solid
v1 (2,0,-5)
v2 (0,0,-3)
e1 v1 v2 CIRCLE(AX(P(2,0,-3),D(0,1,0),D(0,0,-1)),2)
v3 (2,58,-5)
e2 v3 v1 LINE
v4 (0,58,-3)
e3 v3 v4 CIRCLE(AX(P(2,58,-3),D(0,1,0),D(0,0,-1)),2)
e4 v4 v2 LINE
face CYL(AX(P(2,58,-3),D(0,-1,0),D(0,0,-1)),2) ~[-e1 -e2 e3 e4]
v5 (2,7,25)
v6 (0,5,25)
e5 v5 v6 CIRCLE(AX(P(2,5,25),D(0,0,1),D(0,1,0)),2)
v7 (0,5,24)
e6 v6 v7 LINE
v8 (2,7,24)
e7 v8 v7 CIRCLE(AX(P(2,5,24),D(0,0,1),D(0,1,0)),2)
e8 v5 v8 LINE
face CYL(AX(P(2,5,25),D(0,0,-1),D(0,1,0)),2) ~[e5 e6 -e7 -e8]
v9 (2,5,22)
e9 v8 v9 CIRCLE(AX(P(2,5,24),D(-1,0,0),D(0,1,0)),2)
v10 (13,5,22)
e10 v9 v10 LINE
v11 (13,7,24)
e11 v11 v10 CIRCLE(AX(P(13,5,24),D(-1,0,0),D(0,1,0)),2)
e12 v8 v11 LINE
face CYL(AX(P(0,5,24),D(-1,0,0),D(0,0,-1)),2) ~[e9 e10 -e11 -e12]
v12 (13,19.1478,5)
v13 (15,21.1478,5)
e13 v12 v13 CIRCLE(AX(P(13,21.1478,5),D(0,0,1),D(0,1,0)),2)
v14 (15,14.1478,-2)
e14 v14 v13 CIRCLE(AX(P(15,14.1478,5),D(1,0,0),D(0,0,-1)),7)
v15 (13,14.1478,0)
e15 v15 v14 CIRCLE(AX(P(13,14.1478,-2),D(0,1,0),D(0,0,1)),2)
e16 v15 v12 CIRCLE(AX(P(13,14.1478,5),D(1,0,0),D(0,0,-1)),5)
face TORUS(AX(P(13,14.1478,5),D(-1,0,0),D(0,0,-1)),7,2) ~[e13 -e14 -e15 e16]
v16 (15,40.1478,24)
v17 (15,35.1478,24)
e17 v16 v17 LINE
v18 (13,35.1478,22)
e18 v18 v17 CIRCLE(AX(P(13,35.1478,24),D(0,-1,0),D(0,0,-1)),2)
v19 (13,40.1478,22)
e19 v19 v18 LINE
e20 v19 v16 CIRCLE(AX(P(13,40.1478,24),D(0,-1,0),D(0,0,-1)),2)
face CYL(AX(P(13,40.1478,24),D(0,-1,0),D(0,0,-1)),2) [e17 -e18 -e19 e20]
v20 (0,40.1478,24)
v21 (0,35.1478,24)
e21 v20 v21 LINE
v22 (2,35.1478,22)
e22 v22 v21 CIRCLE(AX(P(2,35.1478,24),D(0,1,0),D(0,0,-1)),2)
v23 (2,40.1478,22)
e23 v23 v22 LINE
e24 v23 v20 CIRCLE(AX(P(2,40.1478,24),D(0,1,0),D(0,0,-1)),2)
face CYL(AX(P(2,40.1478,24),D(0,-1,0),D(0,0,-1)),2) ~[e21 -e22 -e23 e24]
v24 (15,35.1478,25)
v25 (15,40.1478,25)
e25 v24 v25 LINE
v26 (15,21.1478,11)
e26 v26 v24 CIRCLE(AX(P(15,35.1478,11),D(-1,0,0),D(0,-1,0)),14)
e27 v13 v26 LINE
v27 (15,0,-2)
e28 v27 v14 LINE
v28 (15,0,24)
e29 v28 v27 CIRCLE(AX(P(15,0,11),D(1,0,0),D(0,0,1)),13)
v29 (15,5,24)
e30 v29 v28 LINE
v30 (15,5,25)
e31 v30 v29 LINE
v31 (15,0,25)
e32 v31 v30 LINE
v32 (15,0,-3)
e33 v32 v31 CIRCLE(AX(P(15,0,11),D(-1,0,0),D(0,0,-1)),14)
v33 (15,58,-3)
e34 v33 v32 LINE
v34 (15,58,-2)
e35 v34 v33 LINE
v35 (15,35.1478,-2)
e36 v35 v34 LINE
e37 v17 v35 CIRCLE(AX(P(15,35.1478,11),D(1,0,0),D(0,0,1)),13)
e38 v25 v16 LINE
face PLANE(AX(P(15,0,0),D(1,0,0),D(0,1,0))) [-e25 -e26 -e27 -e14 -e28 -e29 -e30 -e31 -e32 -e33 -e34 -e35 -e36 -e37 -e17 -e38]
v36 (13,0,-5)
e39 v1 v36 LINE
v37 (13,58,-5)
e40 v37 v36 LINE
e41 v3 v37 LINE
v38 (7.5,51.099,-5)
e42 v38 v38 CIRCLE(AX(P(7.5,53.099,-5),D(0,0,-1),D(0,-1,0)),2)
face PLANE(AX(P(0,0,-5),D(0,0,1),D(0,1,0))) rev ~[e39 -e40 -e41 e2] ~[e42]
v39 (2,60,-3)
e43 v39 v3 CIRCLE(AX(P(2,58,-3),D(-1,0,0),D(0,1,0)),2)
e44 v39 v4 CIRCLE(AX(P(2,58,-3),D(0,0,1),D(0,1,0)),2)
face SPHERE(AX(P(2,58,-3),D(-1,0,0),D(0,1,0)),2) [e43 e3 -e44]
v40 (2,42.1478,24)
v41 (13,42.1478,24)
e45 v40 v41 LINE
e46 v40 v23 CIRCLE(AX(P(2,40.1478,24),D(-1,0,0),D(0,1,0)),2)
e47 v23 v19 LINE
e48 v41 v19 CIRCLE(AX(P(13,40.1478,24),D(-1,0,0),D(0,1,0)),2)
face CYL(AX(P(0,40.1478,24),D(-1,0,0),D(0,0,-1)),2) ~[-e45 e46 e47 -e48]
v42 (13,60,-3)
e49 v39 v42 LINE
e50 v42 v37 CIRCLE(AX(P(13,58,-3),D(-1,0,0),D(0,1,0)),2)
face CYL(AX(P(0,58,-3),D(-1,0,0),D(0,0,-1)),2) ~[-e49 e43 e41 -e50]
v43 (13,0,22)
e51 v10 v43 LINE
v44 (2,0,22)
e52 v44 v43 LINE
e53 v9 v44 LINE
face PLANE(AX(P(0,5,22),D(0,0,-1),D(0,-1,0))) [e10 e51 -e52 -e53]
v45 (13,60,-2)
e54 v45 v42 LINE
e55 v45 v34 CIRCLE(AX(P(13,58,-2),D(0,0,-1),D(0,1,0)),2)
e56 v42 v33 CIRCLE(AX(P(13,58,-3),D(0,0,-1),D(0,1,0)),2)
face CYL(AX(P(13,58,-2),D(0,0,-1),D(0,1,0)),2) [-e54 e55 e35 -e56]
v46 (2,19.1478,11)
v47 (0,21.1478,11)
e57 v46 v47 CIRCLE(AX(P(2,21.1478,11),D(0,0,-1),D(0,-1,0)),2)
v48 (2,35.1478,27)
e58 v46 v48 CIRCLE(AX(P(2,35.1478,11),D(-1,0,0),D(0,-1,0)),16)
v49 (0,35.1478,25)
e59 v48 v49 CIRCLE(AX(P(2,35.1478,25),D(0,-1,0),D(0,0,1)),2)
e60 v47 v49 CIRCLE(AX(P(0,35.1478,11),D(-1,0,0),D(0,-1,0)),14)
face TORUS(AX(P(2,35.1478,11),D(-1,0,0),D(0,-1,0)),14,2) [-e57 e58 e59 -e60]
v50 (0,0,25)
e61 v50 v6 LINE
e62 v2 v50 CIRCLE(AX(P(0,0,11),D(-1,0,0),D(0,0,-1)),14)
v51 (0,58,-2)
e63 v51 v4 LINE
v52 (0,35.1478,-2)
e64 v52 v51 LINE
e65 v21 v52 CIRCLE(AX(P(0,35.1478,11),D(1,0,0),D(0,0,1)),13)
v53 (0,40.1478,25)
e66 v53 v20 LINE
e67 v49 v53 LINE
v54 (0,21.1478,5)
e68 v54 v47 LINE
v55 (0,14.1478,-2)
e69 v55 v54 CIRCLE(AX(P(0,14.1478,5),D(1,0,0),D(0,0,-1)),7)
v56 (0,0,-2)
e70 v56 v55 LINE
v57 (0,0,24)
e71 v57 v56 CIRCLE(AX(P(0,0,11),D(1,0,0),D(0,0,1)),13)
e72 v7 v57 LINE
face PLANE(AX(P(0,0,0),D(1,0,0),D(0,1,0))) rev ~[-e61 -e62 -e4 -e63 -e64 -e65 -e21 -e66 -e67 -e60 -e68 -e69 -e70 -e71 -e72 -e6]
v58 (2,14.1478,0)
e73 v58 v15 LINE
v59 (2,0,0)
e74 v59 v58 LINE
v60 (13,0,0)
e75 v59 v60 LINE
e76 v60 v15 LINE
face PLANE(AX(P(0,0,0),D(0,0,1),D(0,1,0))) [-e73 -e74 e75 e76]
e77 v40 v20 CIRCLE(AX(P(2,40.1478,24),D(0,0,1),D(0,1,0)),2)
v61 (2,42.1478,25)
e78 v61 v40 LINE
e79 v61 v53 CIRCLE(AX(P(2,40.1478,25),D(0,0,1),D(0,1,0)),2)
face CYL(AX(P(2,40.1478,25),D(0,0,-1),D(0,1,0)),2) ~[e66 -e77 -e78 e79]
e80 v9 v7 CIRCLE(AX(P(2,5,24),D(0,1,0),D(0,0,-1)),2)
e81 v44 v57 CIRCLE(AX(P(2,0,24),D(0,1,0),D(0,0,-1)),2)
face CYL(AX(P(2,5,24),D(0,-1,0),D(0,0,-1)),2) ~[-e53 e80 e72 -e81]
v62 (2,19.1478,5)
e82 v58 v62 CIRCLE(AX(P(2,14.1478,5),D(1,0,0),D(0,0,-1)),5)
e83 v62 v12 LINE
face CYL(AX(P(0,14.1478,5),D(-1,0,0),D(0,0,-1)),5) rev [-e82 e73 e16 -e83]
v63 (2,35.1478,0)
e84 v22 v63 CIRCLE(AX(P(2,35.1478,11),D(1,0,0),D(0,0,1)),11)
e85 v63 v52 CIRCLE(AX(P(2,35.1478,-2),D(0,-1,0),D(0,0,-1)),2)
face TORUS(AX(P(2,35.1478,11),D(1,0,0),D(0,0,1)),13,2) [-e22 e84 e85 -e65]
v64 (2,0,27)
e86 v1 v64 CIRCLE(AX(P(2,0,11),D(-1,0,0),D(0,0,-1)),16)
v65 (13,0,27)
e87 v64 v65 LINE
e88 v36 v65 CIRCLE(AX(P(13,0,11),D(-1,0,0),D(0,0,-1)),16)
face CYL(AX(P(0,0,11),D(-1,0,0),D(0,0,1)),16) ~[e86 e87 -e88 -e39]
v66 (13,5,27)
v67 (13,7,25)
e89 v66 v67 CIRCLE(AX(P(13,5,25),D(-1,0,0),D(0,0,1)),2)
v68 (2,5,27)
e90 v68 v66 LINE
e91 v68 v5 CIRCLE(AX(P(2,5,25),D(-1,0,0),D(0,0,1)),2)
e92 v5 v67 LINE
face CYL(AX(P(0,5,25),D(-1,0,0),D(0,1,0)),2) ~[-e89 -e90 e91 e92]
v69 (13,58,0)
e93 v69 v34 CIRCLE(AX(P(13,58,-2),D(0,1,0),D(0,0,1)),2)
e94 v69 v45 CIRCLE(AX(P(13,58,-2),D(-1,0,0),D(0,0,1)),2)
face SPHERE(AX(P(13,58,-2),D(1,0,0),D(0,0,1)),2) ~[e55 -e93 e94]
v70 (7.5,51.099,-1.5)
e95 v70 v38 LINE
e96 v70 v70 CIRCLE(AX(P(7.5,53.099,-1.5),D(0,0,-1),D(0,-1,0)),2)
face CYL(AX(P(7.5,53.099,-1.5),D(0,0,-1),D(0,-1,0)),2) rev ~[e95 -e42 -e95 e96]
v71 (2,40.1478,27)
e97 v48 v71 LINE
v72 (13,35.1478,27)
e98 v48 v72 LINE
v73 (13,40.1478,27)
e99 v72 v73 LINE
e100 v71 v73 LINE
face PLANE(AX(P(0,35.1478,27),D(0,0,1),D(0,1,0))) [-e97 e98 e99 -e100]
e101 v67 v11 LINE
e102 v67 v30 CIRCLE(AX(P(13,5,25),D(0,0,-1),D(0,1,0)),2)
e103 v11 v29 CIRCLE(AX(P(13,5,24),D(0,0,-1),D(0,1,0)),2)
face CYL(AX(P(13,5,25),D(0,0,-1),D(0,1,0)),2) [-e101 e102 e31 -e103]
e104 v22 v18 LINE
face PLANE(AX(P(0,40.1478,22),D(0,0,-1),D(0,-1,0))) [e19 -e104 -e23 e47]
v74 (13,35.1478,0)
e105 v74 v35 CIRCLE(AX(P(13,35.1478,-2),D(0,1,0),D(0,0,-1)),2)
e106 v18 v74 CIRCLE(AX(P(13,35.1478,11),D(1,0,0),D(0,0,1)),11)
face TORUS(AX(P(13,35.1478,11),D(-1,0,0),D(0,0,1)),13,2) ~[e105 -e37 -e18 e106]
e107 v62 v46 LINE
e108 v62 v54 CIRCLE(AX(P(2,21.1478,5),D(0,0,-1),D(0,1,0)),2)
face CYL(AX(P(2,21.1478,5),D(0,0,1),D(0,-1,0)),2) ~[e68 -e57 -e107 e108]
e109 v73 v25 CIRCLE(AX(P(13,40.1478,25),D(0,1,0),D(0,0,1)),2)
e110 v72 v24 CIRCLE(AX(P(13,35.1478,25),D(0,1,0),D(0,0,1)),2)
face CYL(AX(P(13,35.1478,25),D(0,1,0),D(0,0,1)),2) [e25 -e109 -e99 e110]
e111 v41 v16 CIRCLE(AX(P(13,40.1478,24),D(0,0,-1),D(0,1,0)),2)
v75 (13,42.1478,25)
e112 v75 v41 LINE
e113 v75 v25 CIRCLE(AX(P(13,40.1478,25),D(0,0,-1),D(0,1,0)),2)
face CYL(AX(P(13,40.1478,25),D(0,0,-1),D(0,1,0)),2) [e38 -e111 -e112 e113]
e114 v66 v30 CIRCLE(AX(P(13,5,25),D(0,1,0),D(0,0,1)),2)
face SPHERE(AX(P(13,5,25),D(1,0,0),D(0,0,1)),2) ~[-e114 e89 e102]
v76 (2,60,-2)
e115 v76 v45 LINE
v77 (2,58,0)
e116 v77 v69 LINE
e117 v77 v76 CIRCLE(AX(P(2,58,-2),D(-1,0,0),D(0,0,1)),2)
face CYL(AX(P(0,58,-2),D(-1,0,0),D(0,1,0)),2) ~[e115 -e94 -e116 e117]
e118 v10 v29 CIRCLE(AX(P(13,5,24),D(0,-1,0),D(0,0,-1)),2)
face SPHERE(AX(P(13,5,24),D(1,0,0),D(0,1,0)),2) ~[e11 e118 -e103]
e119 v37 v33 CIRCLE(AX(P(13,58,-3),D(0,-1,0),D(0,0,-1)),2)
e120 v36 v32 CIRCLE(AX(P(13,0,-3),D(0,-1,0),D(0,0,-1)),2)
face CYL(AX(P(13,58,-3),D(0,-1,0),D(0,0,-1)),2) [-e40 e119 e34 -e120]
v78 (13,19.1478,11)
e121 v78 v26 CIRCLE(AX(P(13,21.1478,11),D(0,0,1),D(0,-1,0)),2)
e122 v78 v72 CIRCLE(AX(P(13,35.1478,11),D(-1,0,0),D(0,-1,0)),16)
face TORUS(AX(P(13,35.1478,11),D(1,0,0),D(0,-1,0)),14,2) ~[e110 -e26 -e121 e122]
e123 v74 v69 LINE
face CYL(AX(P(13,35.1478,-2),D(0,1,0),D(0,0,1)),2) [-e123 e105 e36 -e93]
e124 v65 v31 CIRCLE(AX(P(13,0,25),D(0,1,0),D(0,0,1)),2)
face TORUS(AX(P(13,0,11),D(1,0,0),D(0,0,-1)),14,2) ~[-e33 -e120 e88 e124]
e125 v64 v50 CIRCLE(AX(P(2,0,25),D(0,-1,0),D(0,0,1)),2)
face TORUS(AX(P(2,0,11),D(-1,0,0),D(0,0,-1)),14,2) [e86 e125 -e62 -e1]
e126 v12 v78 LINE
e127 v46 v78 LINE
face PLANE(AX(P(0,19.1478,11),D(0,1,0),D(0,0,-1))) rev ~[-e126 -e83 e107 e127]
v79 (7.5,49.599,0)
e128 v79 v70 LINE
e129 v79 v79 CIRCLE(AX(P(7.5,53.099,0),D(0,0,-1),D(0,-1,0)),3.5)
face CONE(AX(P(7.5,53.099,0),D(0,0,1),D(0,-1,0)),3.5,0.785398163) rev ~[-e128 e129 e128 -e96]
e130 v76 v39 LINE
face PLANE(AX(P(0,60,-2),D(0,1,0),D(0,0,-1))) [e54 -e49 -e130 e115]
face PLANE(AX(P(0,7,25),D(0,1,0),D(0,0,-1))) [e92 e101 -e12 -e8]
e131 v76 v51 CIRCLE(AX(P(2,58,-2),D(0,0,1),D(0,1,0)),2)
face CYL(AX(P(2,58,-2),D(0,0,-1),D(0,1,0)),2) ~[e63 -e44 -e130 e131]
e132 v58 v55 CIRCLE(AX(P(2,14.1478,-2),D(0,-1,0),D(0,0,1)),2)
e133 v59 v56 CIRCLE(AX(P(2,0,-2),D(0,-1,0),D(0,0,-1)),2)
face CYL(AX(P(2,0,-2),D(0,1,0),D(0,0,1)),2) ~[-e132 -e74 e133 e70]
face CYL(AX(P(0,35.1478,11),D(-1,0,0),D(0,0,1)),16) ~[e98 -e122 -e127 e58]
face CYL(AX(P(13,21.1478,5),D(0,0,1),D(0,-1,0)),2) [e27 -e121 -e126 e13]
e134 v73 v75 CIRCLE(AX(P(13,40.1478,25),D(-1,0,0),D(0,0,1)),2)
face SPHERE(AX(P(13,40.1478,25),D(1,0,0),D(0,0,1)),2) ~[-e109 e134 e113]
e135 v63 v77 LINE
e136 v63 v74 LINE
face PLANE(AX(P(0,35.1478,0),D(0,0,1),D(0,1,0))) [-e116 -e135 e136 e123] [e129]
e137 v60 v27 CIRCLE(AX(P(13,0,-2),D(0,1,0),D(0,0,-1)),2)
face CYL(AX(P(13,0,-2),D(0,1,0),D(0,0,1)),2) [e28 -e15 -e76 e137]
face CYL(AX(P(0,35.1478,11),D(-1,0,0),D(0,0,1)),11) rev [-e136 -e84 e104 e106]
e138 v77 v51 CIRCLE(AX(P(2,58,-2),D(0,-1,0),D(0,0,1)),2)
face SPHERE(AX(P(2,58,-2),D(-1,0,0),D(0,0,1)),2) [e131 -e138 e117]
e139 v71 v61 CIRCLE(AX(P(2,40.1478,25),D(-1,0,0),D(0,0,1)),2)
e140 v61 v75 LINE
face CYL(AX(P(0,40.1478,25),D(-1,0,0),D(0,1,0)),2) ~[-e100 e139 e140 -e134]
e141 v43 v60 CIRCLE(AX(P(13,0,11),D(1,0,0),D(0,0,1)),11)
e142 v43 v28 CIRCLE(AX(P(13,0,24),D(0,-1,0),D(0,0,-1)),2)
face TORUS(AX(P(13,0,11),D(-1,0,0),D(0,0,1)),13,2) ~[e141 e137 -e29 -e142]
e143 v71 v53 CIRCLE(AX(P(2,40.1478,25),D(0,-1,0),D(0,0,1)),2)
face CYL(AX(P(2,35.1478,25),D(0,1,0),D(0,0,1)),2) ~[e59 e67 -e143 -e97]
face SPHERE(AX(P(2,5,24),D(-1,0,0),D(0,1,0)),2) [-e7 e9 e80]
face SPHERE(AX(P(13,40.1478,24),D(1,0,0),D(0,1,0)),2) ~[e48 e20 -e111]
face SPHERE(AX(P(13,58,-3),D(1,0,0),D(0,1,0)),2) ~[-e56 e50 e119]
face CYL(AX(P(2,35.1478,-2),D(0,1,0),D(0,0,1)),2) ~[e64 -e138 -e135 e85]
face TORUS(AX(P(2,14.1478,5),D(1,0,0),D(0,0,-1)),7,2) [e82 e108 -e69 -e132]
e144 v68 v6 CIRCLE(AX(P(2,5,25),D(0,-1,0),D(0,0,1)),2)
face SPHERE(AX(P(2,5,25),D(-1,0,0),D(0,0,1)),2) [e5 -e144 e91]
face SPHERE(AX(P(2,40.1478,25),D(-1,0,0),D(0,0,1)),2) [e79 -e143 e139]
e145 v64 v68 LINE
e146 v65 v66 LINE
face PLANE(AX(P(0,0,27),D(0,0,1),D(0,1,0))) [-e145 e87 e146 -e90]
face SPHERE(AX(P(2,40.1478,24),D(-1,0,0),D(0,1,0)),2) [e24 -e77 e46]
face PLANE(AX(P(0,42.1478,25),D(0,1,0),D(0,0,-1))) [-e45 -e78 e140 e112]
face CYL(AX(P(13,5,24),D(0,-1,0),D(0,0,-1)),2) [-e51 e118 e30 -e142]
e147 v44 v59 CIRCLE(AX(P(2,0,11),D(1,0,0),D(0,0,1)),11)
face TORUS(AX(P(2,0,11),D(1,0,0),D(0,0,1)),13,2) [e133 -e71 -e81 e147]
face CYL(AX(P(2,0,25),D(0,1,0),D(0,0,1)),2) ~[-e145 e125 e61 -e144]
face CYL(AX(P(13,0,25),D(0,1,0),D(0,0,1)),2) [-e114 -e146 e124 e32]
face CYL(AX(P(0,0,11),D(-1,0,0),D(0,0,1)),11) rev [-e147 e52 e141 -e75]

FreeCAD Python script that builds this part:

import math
import FreeCAD as App
import Part
import Sketcher
from FreeCAD import Vector
Q = App.Units.Quantity


def edges_at(feature, points):
    """Names of the edges that pass closest to the given points."""
    edges = feature.Shape.Edges
    near = lambda p: min(range(len(edges)), key=lambda i: edges[i].distToShape(Part.Vertex(*p))[0])
    return sorted({f"Edge{near(p) + 1}" for p in points})

doc = App.newDocument("Part")
body = doc.addObject("PartDesign::Body", "Body")

sketch1 = doc.addObject("Sketcher::SketchObject", "Sketch")
body.addObject(sketch1)
sketch1.AttachmentSupport = (doc.YZ_Plane, [""])
sketch1.MapMode = "FlatFace"
sketch1.addGeometry(Part.ArcOfCircle(Part.Circle(Vector(0, 11, 0), Vector(0, 0, 1), 11), math.radians(90), math.radians(270)), False)
sketch1.addGeometry(Part.LineSegment(Vector(0, 22, 0), Vector(5, 22, 0)), False)
sketch1.addGeometry(Part.ArcOfCircle(Part.Circle(Vector(5, 24, 0), Vector(0, 0, 1), 2), math.radians(-90), math.radians(0)), False)
sketch1.addGeometry(Part.LineSegment(Vector(7, 24, 0), Vector(7, 25, 0)), False)
sketch1.addGeometry(Part.ArcOfCircle(Part.Circle(Vector(5, 25, 0), Vector(0, 0, 1), 2), math.radians(0), math.radians(90)), False)
sketch1.addGeometry(Part.LineSegment(Vector(5, 27, 0), Vector(0, 27, 0)), False)
sketch1.addGeometry(Part.ArcOfCircle(Part.Circle(Vector(0, 11, 0), Vector(0, 0, 1), 16), math.radians(90), math.radians(270)), False)
sketch1.addGeometry(Part.LineSegment(Vector(0, -5, 0), Vector(58, -5, 0)), False)
sketch1.addGeometry(Part.ArcOfCircle(Part.Circle(Vector(58, -3, 0), Vector(0, 0, 1), 2), math.radians(-90), math.radians(0)), False)
sketch1.addGeometry(Part.LineSegment(Vector(60, -3, 0), Vector(60, -2, 0)), False)
sketch1.addGeometry(Part.ArcOfCircle(Part.Circle(Vector(58, -2, 0), Vector(0, 0, 1), 2), math.radians(0), math.radians(90)), False)
sketch1.addGeometry(Part.LineSegment(Vector(58, 0, 0), Vector(35.1, 0, 0)), False)
sketch1.addGeometry(Part.ArcOfCircle(Part.Circle(Vector(35.1, 11, 0), Vector(0, 0, 1), 11), math.radians(90), math.radians(270)), False)
sketch1.addGeometry(Part.LineSegment(Vector(35.1, 22, 0), Vector(40.1, 22, 0)), False)
sketch1.addGeometry(Part.ArcOfCircle(Part.Circle(Vector(40.1, 24, 0), Vector(0, 0, 1), 2), math.radians(-90), math.radians(0)), False)
sketch1.addGeometry(Part.LineSegment(Vector(42.1, 24, 0), Vector(42.1, 25, 0)), False)
sketch1.addGeometry(Part.ArcOfCircle(Part.Circle(Vector(40.1, 25, 0), Vector(0, 0, 1), 2), math.radians(0), math.radians(90)), False)
sketch1.addGeometry(Part.LineSegment(Vector(40.1, 27, 0), Vector(35.1, 27, 0)), False)
sketch1.addGeometry(Part.ArcOfCircle(Part.Circle(Vector(35.1, 11, 0), Vector(0, 0, 1), 16), math.radians(90), math.radians(180)), False)
sketch1.addGeometry(Part.LineSegment(Vector(19.1, 11, 0), Vector(19.1, 5, 0)), False)
sketch1.addGeometry(Part.ArcOfCircle(Part.Circle(Vector(14.1, 5, 0), Vector(0, 0, 1), 5), math.radians(-90), math.radians(0)), False)
sketch1.addGeometry(Part.LineSegment(Vector(14.1, 0, 0), Vector(0, 0, 0)), False)
sketch1.addConstraint(Sketcher.Constraint("Tangent", 0, 1, 1, 1))
sketch1.addConstraint(Sketcher.Constraint("Tangent", 1, 2, 2, 1))
sketch1.addConstraint(Sketcher.Constraint("Tangent", 2, 2, 3, 1))
sketch1.addConstraint(Sketcher.Constraint("Tangent", 3, 2, 4, 1))
sketch1.addConstraint(Sketcher.Constraint("Tangent", 4, 2, 5, 1))
sketch1.addConstraint(Sketcher.Constraint("Tangent", 5, 2, 6, 1))
sketch1.addConstraint(Sketcher.Constraint("Tangent", 6, 2, 7, 1))
sketch1.addConstraint(Sketcher.Constraint("Tangent", 7, 2, 8, 1))
sketch1.addConstraint(Sketcher.Constraint("Tangent", 8, 2, 9, 1))
sketch1.addConstraint(Sketcher.Constraint("Tangent", 9, 2, 10, 1))
sketch1.addConstraint(Sketcher.Constraint("Tangent", 10, 2, 11, 1))
sketch1.addConstraint(Sketcher.Constraint("Tangent", 11, 2, 12, 2))
sketch1.addConstraint(Sketcher.Constraint("Tangent", 12, 1, 13, 1))
sketch1.addConstraint(Sketcher.Constraint("Tangent", 13, 2, 14, 1))
sketch1.addConstraint(Sketcher.Constraint("Tangent", 14, 2, 15, 1))
sketch1.addConstraint(Sketcher.Constraint("Tangent", 15, 2, 16, 1))
sketch1.addConstraint(Sketcher.Constraint("Tangent", 16, 2, 17, 1))
sketch1.addConstraint(Sketcher.Constraint("Tangent", 17, 2, 18, 1))
sketch1.addConstraint(Sketcher.Constraint("Tangent", 18, 2, 19, 1))
sketch1.addConstraint(Sketcher.Constraint("Tangent", 19, 2, 20, 2))
sketch1.addConstraint(Sketcher.Constraint("Tangent", 20, 1, 21, 1))
sketch1.addConstraint(Sketcher.Constraint("Tangent", 21, 2, 0, 2))
sketch1.addConstraint(Sketcher.Constraint("Horizontal", 1))
sketch1.addConstraint(Sketcher.Constraint("Vertical", 3))
sketch1.addConstraint(Sketcher.Constraint("Horizontal", 5))
sketch1.addConstraint(Sketcher.Constraint("Horizontal", 7))
sketch1.addConstraint(Sketcher.Constraint("Vertical", 9))
sketch1.addConstraint(Sketcher.Constraint("Horizontal", 11))
sketch1.addConstraint(Sketcher.Constraint("Horizontal", 13))
sketch1.addConstraint(Sketcher.Constraint("Vertical", 15))
sketch1.addConstraint(Sketcher.Constraint("Horizontal", 17))
sketch1.addConstraint(Sketcher.Constraint("Vertical", 19))
sketch1.addConstraint(Sketcher.Constraint("Horizontal", 21))
sketch1.addConstraint(Sketcher.Constraint("Coincident", 21, 2, -1, 1))
sketch1.addConstraint(Sketcher.Constraint("Coincident", 6, 3, 0, 3))
sketch1.addConstraint(Sketcher.Constraint("Coincident", 18, 3, 12, 3))
sketch1.addConstraint(Sketcher.Constraint("Equal", 2, 4))
sketch1.addConstraint(Sketcher.Constraint("Equal", 4, 8))
sketch1.addConstraint(Sketcher.Constraint("Equal", 8, 10))
sketch1.addConstraint(Sketcher.Constraint("Equal", 0, 12))
sketch1.addConstraint(Sketcher.Constraint("Equal", 10, 14))
sketch1.addConstraint(Sketcher.Constraint("Equal", 14, 16))
sketch1.addConstraint(Sketcher.Constraint("Equal", 6, 18))
sketch1.addConstraint(Sketcher.Constraint("PointOnObject", 10, 2, -1))
sketch1.addConstraint(Sketcher.Constraint("Equal", 5, 13))
sketch1.addConstraint(Sketcher.Constraint("Radius", 0, Q("11 mm")))
sketch1.addConstraint(Sketcher.Constraint("Radius", 2, Q("2 mm")))
sketch1.addConstraint(Sketcher.Constraint("Radius", 20, Q("5 mm")))
sketch1.addConstraint(Sketcher.Constraint("DistanceX", 1, 1, 1, 2, Q("5 mm")))
sketch1.addConstraint(Sketcher.Constraint("DistanceY", 6, 2, -1, 1, Q("5 mm")))
sketch1.addConstraint(Sketcher.Constraint("DistanceX", -1, 1, 8, 2, Q("60 mm")))
sketch1.addConstraint(Sketcher.Constraint("DistanceX", 11, 2, 11, 1, Q("22.8522 mm")))
pad1 = doc.addObject("PartDesign::Pad", "Pad")
body.addObject(pad1)
pad1.Profile = sketch1
pad1.Length = 15
doc.recompute()

fillet = doc.addObject("PartDesign::Fillet", "Fillet")
body.addObject(fillet)
fillet.Base = (pad1, edges_at(pad1, [
    (0, 37.648, 22),
    (0, 41.562, 22.586),
    (0, 42.148, 24.5),
    (0, 41.562, 26.414),
    (0, 37.648, 27),
    (0, 23.834, 22.314),
    (0, 19.148, 8),
    (0, 17.683, 1.464),
    (0, 7.074, 0),
    (0, -11, 11),
    (0, 2.5, 22),
    (0, 6.414, 22.586),
    (0, 7, 24.5),
    (0, 6.414, 26.414),
    (0, 2.5, 27),
    (0, -16, 11),
    (0, 29, -5),
    (0, 59.414, -4.414),
    (0, 60, -2.5),
    (0, 59.414, -0.586),
    (0, 46.574, 0),
    (0, 24.148, 11),
    (15, 37.648, 22),
    (15, 41.562, 22.586),
    (15, 42.148, 24.5),
    (15, 41.562, 26.414),
    (15, 37.648, 27),
    (15, 23.834, 22.314),
    (15, 19.148, 8),
    (15, 17.683, 1.464),
    (15, 7.074, 0),
    (15, -11, 11),
    (15, 2.5, 22),
    (15, 6.414, 22.586),
    (15, 7, 24.5),
    (15, 6.414, 26.414),
    (15, 2.5, 27),
    (15, -16, 11),
    (15, 29, -5),
    (15, 59.414, -4.414),
    (15, 60, -2.5),
    (15, 59.414, -0.586),
    (15, 46.574, 0),
    (15, 24.148, 11),
]))
fillet.Radius = 2

sketch2 = doc.addObject("Sketcher::SketchObject", "Sketch001")
body.addObject(sketch2)
sketch2.AttachmentSupport = (doc.XY_Plane, [""])
sketch2.MapMode = "FlatFace"
sketch2.addGeometry(Part.Circle(Vector(7.5, 53.1, 0), Vector(0, 0, 1), 2), False)
sketch2.addConstraint(Sketcher.Constraint("Diameter", 0, Q("4 mm")))
sketch2.addConstraint(Sketcher.Constraint("DistanceX", -1, 1, 0, 3, Q("7.5 mm")))
sketch2.addConstraint(Sketcher.Constraint("DistanceY", -1, 1, 0, 3, Q("53.099 mm")))
doc.recompute()
hole = doc.addObject("PartDesign::Hole", "Hole")
body.addObject(hole)
hole.Profile = sketch2
hole.ThreadType = "None"
hole.Diameter = 4
hole.DepthType = "ThroughAll"
hole.HoleCutType = "Countersink"
hole.HoleCutDiameter = 7
hole.HoleCutCountersinkAngle = 90

doc.recompute()
